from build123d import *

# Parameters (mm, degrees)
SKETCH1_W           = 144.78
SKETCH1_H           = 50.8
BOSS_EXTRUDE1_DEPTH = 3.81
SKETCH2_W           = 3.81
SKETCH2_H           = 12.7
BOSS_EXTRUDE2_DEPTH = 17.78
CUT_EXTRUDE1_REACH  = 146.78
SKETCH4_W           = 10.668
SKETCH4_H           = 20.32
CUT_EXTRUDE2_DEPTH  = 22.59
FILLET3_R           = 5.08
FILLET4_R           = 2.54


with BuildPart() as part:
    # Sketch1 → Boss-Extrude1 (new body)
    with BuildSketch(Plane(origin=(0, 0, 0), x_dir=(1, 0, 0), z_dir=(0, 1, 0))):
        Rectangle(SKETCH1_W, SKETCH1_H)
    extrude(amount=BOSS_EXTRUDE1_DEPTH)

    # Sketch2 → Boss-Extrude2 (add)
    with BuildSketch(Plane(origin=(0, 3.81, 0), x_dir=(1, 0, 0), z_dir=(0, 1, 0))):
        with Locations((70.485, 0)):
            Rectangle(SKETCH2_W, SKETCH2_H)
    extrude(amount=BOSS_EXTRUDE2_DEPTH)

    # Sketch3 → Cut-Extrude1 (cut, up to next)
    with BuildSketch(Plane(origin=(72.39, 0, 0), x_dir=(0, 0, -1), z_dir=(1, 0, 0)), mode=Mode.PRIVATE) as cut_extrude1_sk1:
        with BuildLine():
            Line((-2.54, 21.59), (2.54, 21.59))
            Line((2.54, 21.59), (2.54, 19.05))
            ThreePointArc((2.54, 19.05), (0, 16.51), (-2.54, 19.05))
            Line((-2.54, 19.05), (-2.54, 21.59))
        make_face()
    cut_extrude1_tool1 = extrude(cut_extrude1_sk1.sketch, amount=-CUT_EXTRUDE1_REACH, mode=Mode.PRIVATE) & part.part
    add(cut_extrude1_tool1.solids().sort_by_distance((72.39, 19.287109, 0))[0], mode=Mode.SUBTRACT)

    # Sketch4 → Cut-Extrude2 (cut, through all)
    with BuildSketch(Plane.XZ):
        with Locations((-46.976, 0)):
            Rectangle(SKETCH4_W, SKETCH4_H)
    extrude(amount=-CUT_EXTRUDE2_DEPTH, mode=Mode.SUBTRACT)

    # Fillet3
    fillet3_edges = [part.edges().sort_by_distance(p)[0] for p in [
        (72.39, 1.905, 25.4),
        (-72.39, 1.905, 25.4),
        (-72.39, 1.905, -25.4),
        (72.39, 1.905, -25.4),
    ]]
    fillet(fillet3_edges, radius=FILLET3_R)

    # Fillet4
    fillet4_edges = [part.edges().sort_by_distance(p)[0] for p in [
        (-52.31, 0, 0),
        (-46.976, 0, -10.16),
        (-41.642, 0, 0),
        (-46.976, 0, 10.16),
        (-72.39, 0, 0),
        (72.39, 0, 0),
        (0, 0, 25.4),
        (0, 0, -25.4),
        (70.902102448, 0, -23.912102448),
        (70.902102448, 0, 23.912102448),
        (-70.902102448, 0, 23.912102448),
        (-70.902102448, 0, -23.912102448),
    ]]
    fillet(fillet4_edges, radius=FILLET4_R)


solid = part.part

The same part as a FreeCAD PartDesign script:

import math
import FreeCAD as App
import Part
import Sketcher

V = App.Vector
Q = App.Units.Quantity


def edges_at(feature, points):
    """Names of the edges that pass closest to the given points."""
    edges = feature.Shape.Edges
    near = lambda p: min(range(len(edges)), key=lambda i: edges[i].distToShape(Part.Vertex(*p))[0])
    return sorted({f"Edge{near(p) + 1}" for p in points})


def add_polygon(sketch, points):
    """Adds a closed chain of lines whose ends are joined by coincident constraints."""
    first, n = sketch.GeometryCount, len(points)
    for a, b in zip(points, points[1:] + points[:1]):
        sketch.addGeometry(Part.LineSegment(App.Vector(*a, 0), App.Vector(*b, 0)), False)
    for i in range(n):
        sketch.addConstraint(Sketcher.Constraint("Coincident", first + i, 2, first + (i + 1) % n, 1))

doc = App.newDocument("Part")
body = doc.addObject("PartDesign::Body", "Body")

sketch1 = body.newObject("Sketcher::SketchObject", "Sketch")
sketch1.AttachmentSupport = (doc.getObject("XZ_Plane"), [""])
sketch1.MapMode = "FlatFace"
add_polygon(sketch1, [(-72.39, -25.4), (-72.39, 25.4), (72.39, 25.4), (72.39, -25.4)])
sketch1.addConstraint([
    Sketcher.Constraint("Vertical", 0),
    Sketcher.Constraint("Horizontal", 1),
    Sketcher.Constraint("Vertical", 2),
    Sketcher.Constraint("Horizontal", 3),
    Sketcher.Constraint("Symmetric", 0, 2, 2, 2, -1, 1),
    Sketcher.Constraint("DistanceY", 0, 1, 0, 2, Q("2 in")),
    Sketcher.Constraint("DistanceX", 1, 1, 1, 2, Q("5.7 in")),
])
pad1 = body.newObject("PartDesign::Pad", "Pad")
pad1.Profile = sketch1
pad1.Length = Q("0.15 in")
pad1.Reversed = True

sketch2 = body.newObject("Sketcher::SketchObject", "Sketch001")
sketch2.AttachmentSupport = (doc.getObject("XZ_Plane"), [""])
sketch2.MapMode = "FlatFace"
sketch2.AttachmentOffset = App.Placement(V(0, 0, -0.15 * 25.4), App.Rotation())
add_polygon(sketch2, [(68.58, -6.35), (68.58, 6.35), (72.39, 6.35), (72.39, -6.35)])
sketch2.addConstraint([
    Sketcher.Constraint("Vertical", 0),
    Sketcher.Constraint("Horizontal", 1),
    Sketcher.Constraint("Vertical", 2),
    Sketcher.Constraint("Horizontal", 3),
    Sketcher.Constraint("DistanceY", 0, 1, 0, 2, Q("0.5 in")),
    Sketcher.Constraint("DistanceX", 1, 1, 1, 2, Q("0.15 in")),
    Sketcher.Constraint("DistanceX", -1, 1, 0, 2, Q("2.7 in")),
    Sketcher.Constraint("DistanceY", -1, 1, 0, 2, Q("0.25 in")),
])
pad2 = body.newObject("PartDesign::Pad", "Pad001")
pad2.Profile = sketch2
pad2.Length = Q("0.7 in")
pad2.Reversed = True

sketch3 = body.newObject("Sketcher::SketchObject", "Sketch002")
sketch3.AttachmentSupport = (doc.getObject("YZ_Plane"), [""])
sketch3.MapMode = "FlatFace"
sketch3.AttachmentOffset = App.Placement(V(0, 0, 2.85 * 25.4), App.Rotation())
sketch3.addGeometry([
    Part.LineSegment(V(21.59, -2.54, 0), V(21.59, 2.54, 0)),
    Part.LineSegment(V(21.59, 2.54, 0), V(19.05, 2.54, 0)),
    Part.ArcOfCircle(Part.Circle(V(19.05, 0, 0), V(0, 0, 1), 2.54), math.radians(90), math.radians(270)),
    Part.LineSegment(V(19.05, -2.54, 0), V(21.59, -2.54, 0)),
], False)
sketch3.addConstraint([
    Sketcher.Constraint("Coincident", 0, 2, 1, 1),
    Sketcher.Constraint("Tangent", 1, 2, 2, 1),
    Sketcher.Constraint("Tangent", 2, 2, 3, 1),
    Sketcher.Constraint("Coincident", 3, 2, 0, 1),
    Sketcher.Constraint("Vertical", 0),
    Sketcher.Constraint("Horizontal", 1),
    Sketcher.Constraint("Horizontal", 3),
    Sketcher.Constraint("PointOnObject", 2, 3, -1),
    Sketcher.Constraint("Radius", 2, Q("0.1 in")),
    Sketcher.Constraint("DistanceX", 1, 2, 1, 1, Q("0.1 in")),
    Sketcher.Constraint("DistanceX", -1, 1, 2, 3, Q("0.75 in")),
])
pocket1 = body.newObject("PartDesign::Pocket", "Pocket")
pocket1.Profile = sketch3
pocket1.Type = "UpToFirst"

sketch4 = body.newObject("Sketcher::SketchObject", "Sketch003")
sketch4.AttachmentSupport = (doc.getObject("XZ_Plane"), [""])
sketch4.MapMode = "FlatFace"
add_polygon(sketch4, [(-52.31, 10.16), (-52.31, -10.16), (-41.642, -10.16), (-41.642, 10.16)])
sketch4.addConstraint([
    Sketcher.Constraint("Vertical", 0),
    Sketcher.Constraint("Horizontal", 1),
    Sketcher.Constraint("Vertical", 2),
    Sketcher.Constraint("Horizontal", 3),
    Sketcher.Constraint("DistanceY", 0, 2, 0, 1, Q("0.8 in")),
    Sketcher.Constraint("DistanceX", 1, 1, 1, 2, Q("0.42 in")),
    Sketcher.Constraint("DistanceY", 0, 2, -1, 1, Q("0.4 in")),
    Sketcher.Constraint("DistanceX", 0, 2, -1, 1, 52.31),
])
pocket2 = body.newObject("PartDesign::Pocket", "Pocket001")
pocket2.Profile = sketch4
pocket2.Type = "ThroughAll"
doc.recompute()

fillet = body.newObject("PartDesign::Fillet", "Fillet")
fillet.Base = (pocket2, edges_at(pocket2, [
    (72.39, 1.905, 25.4),
    (-72.39, 1.905, 25.4),
    (-72.39, 1.905, -25.4),
    (72.39, 1.905, -25.4),
]))
fillet.Radius = Q("0.2 in")
doc.recompute()

fillet2 = body.newObject("PartDesign::Fillet", "Fillet001")
fillet2.Base = (fillet, edges_at(fillet, [
    (-52.31, 0, 0),
    (-46.976, 0, -10.16),
    (-41.642, 0, 0),
    (-46.976, 0, 10.16),
    (-72.39, 0, 0),
    (72.39, 0, 0),
    (0, 0, 25.4),
    (0, 0, -25.4),
    (70.902, 0, -23.912),
    (70.902, 0, 23.912),
    (-70.902, 0, 23.912),
    (-70.902, 0, -23.912),
]))
fillet2.Radius = Q("0.1 in")

doc.recompute()
